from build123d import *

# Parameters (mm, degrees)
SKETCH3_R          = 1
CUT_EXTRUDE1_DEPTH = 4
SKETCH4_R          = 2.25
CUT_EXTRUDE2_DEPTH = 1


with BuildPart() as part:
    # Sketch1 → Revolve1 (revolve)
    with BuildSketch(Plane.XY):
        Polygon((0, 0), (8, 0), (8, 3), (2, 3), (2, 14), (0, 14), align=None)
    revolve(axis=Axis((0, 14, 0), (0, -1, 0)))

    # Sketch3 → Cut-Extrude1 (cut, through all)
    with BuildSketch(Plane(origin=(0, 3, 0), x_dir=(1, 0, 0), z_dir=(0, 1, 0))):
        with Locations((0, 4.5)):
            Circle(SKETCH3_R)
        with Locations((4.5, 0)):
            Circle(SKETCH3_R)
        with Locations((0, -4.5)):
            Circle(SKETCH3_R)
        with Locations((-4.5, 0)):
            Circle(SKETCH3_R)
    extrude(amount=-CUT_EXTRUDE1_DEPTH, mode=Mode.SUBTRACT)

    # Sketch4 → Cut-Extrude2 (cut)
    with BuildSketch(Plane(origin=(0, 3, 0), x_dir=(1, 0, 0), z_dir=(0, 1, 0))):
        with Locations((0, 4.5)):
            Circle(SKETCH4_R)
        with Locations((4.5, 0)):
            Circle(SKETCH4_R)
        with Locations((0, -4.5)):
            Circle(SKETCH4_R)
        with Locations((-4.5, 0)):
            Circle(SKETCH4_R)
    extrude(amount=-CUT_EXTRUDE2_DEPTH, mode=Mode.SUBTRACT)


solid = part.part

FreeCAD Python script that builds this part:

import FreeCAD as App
import Part
import Sketcher
from FreeCAD import Vector

doc = App.newDocument("Part")
body = doc.addObject("PartDesign::Body", "Body")

# Sketch on XY plane
sketch1 = body.newObject("Sketcher::SketchObject", "Sketch")
sketch1.AttachmentSupport = (doc.getObject("XY_Plane"), [""])
sketch1.MapMode = "FlatFace"
sketch1.addGeometry([
    Part.LineSegment(Vector(0, 0, 0), Vector(8, 0, 0)),  # 0
    Part.LineSegment(Vector(8, 0, 0), Vector(8, 3, 0)),  # 1
    Part.LineSegment(Vector(8, 3, 0), Vector(2, 3, 0)),  # 2
    Part.LineSegment(Vector(2, 3, 0), Vector(2, 14, 0)),  # 3
    Part.LineSegment(Vector(2, 14, 0), Vector(0, 14, 0)),  # 4
    Part.LineSegment(Vector(0, 14, 0), Vector(0, 0, 0)),  # 5
], False)
sketch1.addConstraint([
    Sketcher.Constraint("Coincident", 0, 2, 1, 1),
    Sketcher.Constraint("Coincident", 1, 2, 2, 1),
    Sketcher.Constraint("Coincident", 2, 2, 3, 1),
    Sketcher.Constraint("Coincident", 3, 2, 4, 1),
    Sketcher.Constraint("Coincident", 4, 2, 5, 1),
    Sketcher.Constraint("Coincident", 5, 2, 0, 1),
    Sketcher.Constraint("Horizontal", 0),
    Sketcher.Constraint("Vertical", 1),
    Sketcher.Constraint("Horizontal", 2),
    Sketcher.Constraint("Vertical", 3),
    Sketcher.Constraint("Horizontal", 4),
    Sketcher.Constraint("Vertical", 5),
    Sketcher.Constraint("Coincident", 5, 2, -1, 1),
    Sketcher.Constraint("DistanceX", 0, 1, 0, 2, 8.0),
    Sketcher.Constraint("DistanceX", 2, 2, 2, 1, 6.0),
    Sketcher.Constraint("DistanceY", 1, 1, 1, 2, 3.0),
    Sketcher.Constraint("DistanceY", 3, 1, 3, 2, 11.0),
])
revolution = body.newObject("PartDesign::Revolution", "Revolution")
revolution.Profile = sketch1
revolution.ReferenceAxis = (sketch1, ["V_Axis"])
revolution.Angle = 360

# Sketch on XZ plane
sketch2 = body.newObject("Sketcher::SketchObject", "Sketch001")
sketch2.AttachmentSupport = (doc.getObject("XZ_Plane"), [""])
sketch2.MapMode = "FlatFace"
sketch2.AttachmentOffset = App.Placement(Vector(0, 0, -3), App.Rotation())
sketch2.addGeometry([
    Part.Circle(Vector(0, -4.5, 0), Vector(0, 0, 1), 1),
    Part.Circle(Vector(4.5, 0, 0), Vector(0, 0, 1), 1),
    Part.Circle(Vector(0, 4.5, 0), Vector(0, 0, 1), 1),
    Part.Circle(Vector(-4.5, 0, 0), Vector(0, 0, 1), 1),
], False)
sketch2.addConstraint([
    Sketcher.Constraint("Equal", 0, 1),
    Sketcher.Constraint("Equal", 1, 2),
    Sketcher.Constraint("Equal", 2, 3),
    Sketcher.Constraint("Symmetric", 0, 3, 2, 3, -1, 1),
    Sketcher.Constraint("Symmetric", 1, 3, 3, 3, -1, 1),
    Sketcher.Constraint("PointOnObject", 0, 3, -2),
    Sketcher.Constraint("PointOnObject", 1, 3, -1),
    Sketcher.Constraint("Diameter", 0, 2.0),
    Sketcher.Constraint("DistanceY", 0, 3, 2, 3, 9.0),
    Sketcher.Constraint("DistanceX", 3, 3, 1, 3, 9.0),
])
pocket1 = body.newObject("PartDesign::Pocket", "Pocket")
pocket1.Profile = sketch2
pocket1.Type = "ThroughAll"
pocket1.Reversed = True

# Sketch on XZ plane
sketch3 = body.newObject("Sketcher::SketchObject", "Sketch002")
sketch3.AttachmentSupport = (doc.getObject("XZ_Plane"), [""])
sketch3.MapMode = "FlatFace"
sketch3.AttachmentOffset = App.Placement(Vector(0, 0, -3), App.Rotation())
sketch3.addGeometry([
    Part.Circle(Vector(0, -4.5, 0), Vector(0, 0, 1), 2.25),
    Part.Circle(Vector(4.5, 0, 0), Vector(0, 0, 1), 2.25),
    Part.Circle(Vector(0, 4.5, 0), Vector(0, 0, 1), 2.25),
    Part.Circle(Vector(-4.5, 0, 0), Vector(0, 0, 1), 2.25),
], False)
sketch3.addConstraint([
    Sketcher.Constraint("Equal", 0, 1),
    Sketcher.Constraint("Equal", 1, 2),
    Sketcher.Constraint("Equal", 2, 3),
    Sketcher.Constraint("Symmetric", 0, 3, 2, 3, -1, 1),
    Sketcher.Constraint("Symmetric", 1, 3, 3, 3, -1, 1),
    Sketcher.Constraint("PointOnObject", 0, 3, -2),
    Sketcher.Constraint("PointOnObject", 1, 3, -1),
    Sketcher.Constraint("Diameter", 0, 4.5),
    Sketcher.Constraint("DistanceY", 0, 3, 2, 3, 9.0),
    Sketcher.Constraint("DistanceX", 3, 3, 1, 3, 9.0),
])
pocket2 = body.newObject("PartDesign::Pocket", "Pocket001")
pocket2.Profile = sketch3
pocket2.Length = 1
pocket2.Reversed = True

doc.recompute()
